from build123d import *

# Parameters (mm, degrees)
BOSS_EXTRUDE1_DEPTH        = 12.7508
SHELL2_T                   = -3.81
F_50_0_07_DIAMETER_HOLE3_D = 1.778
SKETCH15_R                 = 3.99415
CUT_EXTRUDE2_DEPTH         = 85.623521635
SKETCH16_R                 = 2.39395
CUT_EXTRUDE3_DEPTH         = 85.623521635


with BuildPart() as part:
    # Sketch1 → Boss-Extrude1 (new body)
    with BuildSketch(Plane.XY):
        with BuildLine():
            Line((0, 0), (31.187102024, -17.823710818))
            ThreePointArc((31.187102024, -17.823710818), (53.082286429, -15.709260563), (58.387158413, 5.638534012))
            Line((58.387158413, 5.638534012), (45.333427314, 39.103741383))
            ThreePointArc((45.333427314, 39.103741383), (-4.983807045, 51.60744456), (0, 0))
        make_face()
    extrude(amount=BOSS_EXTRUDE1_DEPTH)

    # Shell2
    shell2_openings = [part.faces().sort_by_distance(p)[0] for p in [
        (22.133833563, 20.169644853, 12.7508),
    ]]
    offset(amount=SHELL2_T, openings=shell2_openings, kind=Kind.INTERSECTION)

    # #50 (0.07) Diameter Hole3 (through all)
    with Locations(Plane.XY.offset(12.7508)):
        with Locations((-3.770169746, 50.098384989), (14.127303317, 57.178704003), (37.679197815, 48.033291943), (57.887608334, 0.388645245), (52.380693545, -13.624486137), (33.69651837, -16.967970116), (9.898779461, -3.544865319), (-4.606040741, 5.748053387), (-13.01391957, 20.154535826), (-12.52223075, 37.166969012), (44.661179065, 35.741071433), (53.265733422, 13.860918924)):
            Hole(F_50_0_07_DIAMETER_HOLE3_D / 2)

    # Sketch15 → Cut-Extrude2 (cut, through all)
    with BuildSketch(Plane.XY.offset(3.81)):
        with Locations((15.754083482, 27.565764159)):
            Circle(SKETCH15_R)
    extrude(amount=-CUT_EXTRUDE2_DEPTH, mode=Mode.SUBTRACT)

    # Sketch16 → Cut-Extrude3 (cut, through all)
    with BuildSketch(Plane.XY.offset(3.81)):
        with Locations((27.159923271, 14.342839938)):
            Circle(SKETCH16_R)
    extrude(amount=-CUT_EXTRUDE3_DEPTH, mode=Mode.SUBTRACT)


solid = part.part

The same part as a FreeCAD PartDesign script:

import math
import FreeCAD as App
import Part
import Sketcher
Q = App.Units.Quantity


def faces_at(feature, points):
    """Names of the faces that lie closest to the given points."""
    faces = feature.Shape.Faces
    near = lambda p: min(range(len(faces)), key=lambda i: faces[i].distToShape(Part.Vertex(*p))[0])
    return sorted({f"Face{near(p) + 1}" for p in points})

doc = App.newDocument("Part")
params = doc.addObject("Spreadsheet::Sheet", "Params")
for row, (alias, value) in enumerate([
    ("sketch1_radius", "0.75 in"),
    ("sketch1_radius2", "1.25 in"),
    ("pad1_length", "0.502 in"),
    ("thickness_wall", "0.15 in"),
    ("sketch2_diameter", "0.07 in"),
    ("hole_diameter", "0.07 in"),
], start=1):
    params.set(f"A{row}", alias)
    params.set(f"B{row}", "=" + value)
    params.setAlias(f"B{row}", alias)

body = doc.addObject("PartDesign::Body", "Body")

# Sketch on XY plane
sketch1 = doc.addObject("Sketcher::SketchObject", "Sketch")
body.addObject(sketch1)
sketch1.AttachmentSupport = (doc.XY_Plane, [""])
sketch1.MapMode = "FlatFace"
sketch1.addGeometry([
    Part.LineSegment(App.Vector(0, 0, 0), App.Vector(31.187102, -17.823711, 0)),
    Part.ArcOfCircle(Part.Circle(App.Vector(40.639552, -1.284252, 0), App.Vector(0, 0, 1), 19.05), math.radians(-119.748357), math.radians(21.309202)),
    Part.LineSegment(App.Vector(58.387158, 5.638534, 0), App.Vector(45.333427, 39.103741, 0)),
    Part.ArcOfCircle(Part.Circle(App.Vector(15.754083, 27.565764, 0), App.Vector(0, 0, 1), 31.75), math.radians(21.309202), math.radians(240.251643)),
], False)
sketch1.addConstraint([
    Sketcher.Constraint("Tangent", 0, 2, 1, 1),
    Sketcher.Constraint("Tangent", 1, 2, 2, 1),
    Sketcher.Constraint("Tangent", 2, 2, 3, 1),
    Sketcher.Constraint("Tangent", 3, 2, 0, 1),
    Sketcher.Constraint("Coincident", 3, 2, -1, 1),
    Sketcher.Constraint("Radius", 1, Q("0.75 in")),
    Sketcher.Constraint("Radius", 3, Q("1.25 in")),
    Sketcher.Constraint("DistanceY", 0, 2, -1, 1, 17.823711),
    Sketcher.Constraint("DistanceX", -1, 1, 1, 2, 58.387158),
])
sketch1.setExpression("Constraints[5]", "Params.sketch1_radius")
sketch1.setExpression("Constraints[6]", "Params.sketch1_radius2")
pad1 = doc.addObject("PartDesign::Pad", "Pad")
body.addObject(pad1)
pad1.Profile = sketch1
pad1.setExpression("Length", "Params.pad1_length")
doc.recompute()

thickness = doc.addObject("PartDesign::Thickness", "Thickness")
body.addObject(thickness)
thickness.Base = (pad1, faces_at(pad1, [(21.847, 19.491, 12.751)]))
thickness.setExpression("Value", "Params.thickness_wall")
thickness.Reversed = True
thickness.Join = "Intersection"

# Sketch on XY plane
sketch2 = doc.addObject("Sketcher::SketchObject", "Sketch001")
body.addObject(sketch2)
sketch2.AttachmentSupport = (doc.XY_Plane, [""])
sketch2.MapMode = "FlatFace"
sketch2.AttachmentOffset = App.Placement(App.Vector(0, 0, 0.502 * 25.4), App.Rotation())
sketch2.addGeometry([
    Part.Circle(App.Vector(-3.77017, 50.098385, 0), App.Vector(0, 0, 1), 0.889),  # 0
    Part.Circle(App.Vector(14.127303, 57.178704, 0), App.Vector(0, 0, 1), 0.889),  # 1
    Part.Circle(App.Vector(37.679198, 48.033292, 0), App.Vector(0, 0, 1), 0.889),  # 2
    Part.Circle(App.Vector(57.887608, 0.388645, 0), App.Vector(0, 0, 1), 0.889),  # 3
    Part.Circle(App.Vector(52.380694, -13.624486, 0), App.Vector(0, 0, 1), 0.889),  # 4
    Part.Circle(App.Vector(33.696518, -16.96797, 0), App.Vector(0, 0, 1), 0.889),  # 5
    Part.Circle(App.Vector(9.898779, -3.544865, 0), App.Vector(0, 0, 1), 0.889),  # 6
    Part.Circle(App.Vector(-4.606041, 5.748053, 0), App.Vector(0, 0, 1), 0.889),  # 7
    Part.Circle(App.Vector(-13.01392, 20.154536, 0), App.Vector(0, 0, 1), 0.889),  # 8
    Part.Circle(App.Vector(-12.522231, 37.166969, 0), App.Vector(0, 0, 1), 0.889),  # 9
    Part.Circle(App.Vector(44.661179, 35.741071, 0), App.Vector(0, 0, 1), 0.889),  # 10
    Part.Circle(App.Vector(53.265733, 13.860919, 0), App.Vector(0, 0, 1), 0.889),  # 11
], False)
sketch2.addConstraint([
    Sketcher.Constraint("Equal", 0, 1),
    Sketcher.Constraint("Equal", 1, 2),
    Sketcher.Constraint("Equal", 2, 3),
    Sketcher.Constraint("Equal", 3, 4),
    Sketcher.Constraint("Equal", 4, 5),
    Sketcher.Constraint("Equal", 5, 6),
    Sketcher.Constraint("Equal", 6, 7),
    Sketcher.Constraint("Equal", 7, 8),
    Sketcher.Constraint("Equal", 8, 9),
    Sketcher.Constraint("Equal", 9, 10),
    Sketcher.Constraint("Equal", 10, 11),
    Sketcher.Constraint("Diameter", 0, Q("0.07 in")),
    Sketcher.Constraint("DistanceX", 8, 3, 6, 3, 22.912699),
    Sketcher.Constraint("DistanceY", 6, 3, 8, 3, 23.699401),
    Sketcher.Constraint("DistanceX", 0, 3, -1, 1, 3.77017),
    Sketcher.Constraint("DistanceY", -1, 1, 2, 3, 48.033292),
    Sketcher.Constraint("DistanceX", -1, 1, 3, 3, 57.887608),
    Sketcher.Constraint("DistanceX", -1, 1, 5, 3, 33.696518),
    Sketcher.Constraint("DistanceY", 5, 3, -1, 1, 16.96797),
    Sketcher.Constraint("DistanceX", -1, 1, 6, 3, 9.898779),
    Sketcher.Constraint("DistanceX", 7, 3, -1, 1, 4.606041),
    Sketcher.Constraint("DistanceX", 9, 3, -1, 1, 12.522231),
    Sketcher.Constraint("DistanceY", -1, 1, 9, 3, 37.166969),
    Sketcher.Constraint("DistanceX", -1, 1, 10, 3, 44.661179),
    Sketcher.Constraint("DistanceY", -1, 1, 10, 3, 35.741071),
    Sketcher.Constraint("DistanceY", -1, 1, 11, 3, 13.860919),
    Sketcher.Constraint("DistanceY", 0, 3, 1, 3, 7.080319),
    Sketcher.Constraint("DistanceX", 2, 3, 3, 3, 20.208411),
    Sketcher.Constraint("DistanceY", 3, 3, 1, 3, 56.790059),
    Sketcher.Constraint("DistanceY", 4, 3, 3, 3, 14.013131),
    Sketcher.Constraint("DistanceY", 4, 3, 2, 3, 61.657778),
    Sketcher.Constraint("DistanceX", 1, 3, 4, 3, 38.25339),
    Sketcher.Constraint("DistanceY", 4, 3, 6, 3, 10.079621),
    Sketcher.Constraint("DistanceY", 6, 3, 7, 3, 9.292919),
    Sketcher.Constraint("DistanceX", 4, 3, 11, 3, 0.88504),
    Sketcher.Constraint("DistanceX", -1, 1, 1, 3, 14.127303),
])
sketch2.setExpression("Constraints[11]", "Params.sketch2_diameter")
doc.recompute()
hole = doc.addObject("PartDesign::Hole", "Hole")
body.addObject(hole)
hole.Profile = sketch2
hole.ThreadType = "None"
hole.setExpression("Diameter", "Params.hole_diameter")
hole.DepthType = "ThroughAll"

# Sketch on XY plane
sketch3 = doc.addObject("Sketcher::SketchObject", "Sketch002")
body.addObject(sketch3)
sketch3.AttachmentSupport = (doc.XY_Plane, [""])
sketch3.MapMode = "FlatFace"
sketch3.AttachmentOffset = App.Placement(App.Vector(0, 0, 0.15 * 25.4), App.Rotation())
sketch3.addGeometry(Part.Circle(App.Vector(15.754083, 27.565764, 0), App.Vector(0, 0, 1), 3.99415), False)
sketch3.addConstraint([
    Sketcher.Constraint("Diameter", 0, Q("0.3145 in")),
    Sketcher.Constraint("DistanceX", -1, 1, 0, 3, 15.754083),
    Sketcher.Constraint("DistanceY", -1, 1, 0, 3, 27.565764),
])
pocket1 = doc.addObject("PartDesign::Pocket", "Pocket")
body.addObject(pocket1)
pocket1.Profile = sketch3
pocket1.Type = "ThroughAll"

# Sketch on XY plane
sketch4 = doc.addObject("Sketcher::SketchObject", "Sketch003")
body.addObject(sketch4)
sketch4.AttachmentSupport = (doc.XY_Plane, [""])
sketch4.MapMode = "FlatFace"
sketch4.AttachmentOffset = App.Placement(App.Vector(0, 0, 0.15 * 25.4), App.Rotation())
sketch4.addGeometry(Part.Circle(App.Vector(27.159923, 14.34284, 0), App.Vector(0, 0, 1), 2.39395), False)
sketch4.addConstraint([
    Sketcher.Constraint("Diameter", 0, Q("0.1885 in")),
    Sketcher.Constraint("DistanceY", -1, 1, 0, 3, 14.34284),
    Sketcher.Constraint("DistanceX", -1, 1, 0, 3, 27.159923),
])
pocket2 = doc.addObject("PartDesign::Pocket", "Pocket001")
body.addObject(pocket2)
pocket2.Profile = sketch4
pocket2.Type = "ThroughAll"

doc.recompute()
